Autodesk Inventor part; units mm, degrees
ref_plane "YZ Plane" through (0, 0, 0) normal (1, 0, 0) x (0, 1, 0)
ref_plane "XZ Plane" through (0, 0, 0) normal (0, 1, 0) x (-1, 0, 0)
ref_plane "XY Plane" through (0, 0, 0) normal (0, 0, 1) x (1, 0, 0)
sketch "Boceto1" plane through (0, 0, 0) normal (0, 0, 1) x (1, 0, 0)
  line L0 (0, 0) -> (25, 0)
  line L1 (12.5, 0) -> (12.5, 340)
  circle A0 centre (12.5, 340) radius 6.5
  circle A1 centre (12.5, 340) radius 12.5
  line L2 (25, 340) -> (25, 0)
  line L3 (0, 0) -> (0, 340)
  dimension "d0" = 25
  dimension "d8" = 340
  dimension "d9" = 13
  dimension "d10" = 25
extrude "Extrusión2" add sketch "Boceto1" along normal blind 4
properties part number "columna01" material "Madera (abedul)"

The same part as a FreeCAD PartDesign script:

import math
import FreeCAD as App
import Part
import Sketcher
from FreeCAD import Vector
Q = App.Units.Quantity

doc = App.newDocument("Part")
body = doc.addObject("PartDesign::Body", "Body")

# Sketch on XY plane
sketch1 = body.newObject("Sketcher::SketchObject", "Sketch")
sketch1.AttachmentSupport = (doc.getObject("XY_Plane"), [""])
sketch1.MapMode = "FlatFace"
sketch1.addGeometry(Part.LineSegment(Vector(0, 340, 0), Vector(0, 0, 0)), False)
sketch1.addGeometry(Part.LineSegment(Vector(0, 0, 0), Vector(25, 0, 0)), False)
sketch1.addGeometry(Part.LineSegment(Vector(25, 0, 0), Vector(25, 340, 0)), False)
sketch1.addGeometry(Part.ArcOfCircle(Part.Circle(Vector(12, 340, 0), Vector(0, 0, 1), 12), math.radians(0), math.radians(180)), False)
sketch1.addGeometry(Part.Circle(Vector(12, 340, 0), Vector(0, 0, 1), 6), False)
sketch1.addConstraint(Sketcher.Constraint("Coincident", 0, 2, 1, 1))
sketch1.addConstraint(Sketcher.Constraint("Coincident", 1, 2, 2, 1))
sketch1.addConstraint(Sketcher.Constraint("Tangent", 2, 2, 3, 1))
sketch1.addConstraint(Sketcher.Constraint("Tangent", 3, 2, 0, 1))
sketch1.addConstraint(Sketcher.Constraint("Vertical", 0))
sketch1.addConstraint(Sketcher.Constraint("Horizontal", 1))
sketch1.addConstraint(Sketcher.Constraint("Vertical", 2))
sketch1.addConstraint(Sketcher.Constraint("Coincident", 0, 2, -1, 1))
sketch1.addConstraint(Sketcher.Constraint("Coincident", 4, 3, 3, 3))
sketch1.addConstraint(Sketcher.Constraint("Diameter", 4, Q("13 mm")))
sketch1.addConstraint(Sketcher.Constraint("Radius", 3, Q("12.5 mm")))
sketch1.addConstraint(Sketcher.Constraint("DistanceY", 0, 2, 0, 1, Q("340 mm")))
pad1 = body.newObject("PartDesign::Pad", "Pad")
pad1.Profile = sketch1
pad1.Length = 4

doc.recompute()
